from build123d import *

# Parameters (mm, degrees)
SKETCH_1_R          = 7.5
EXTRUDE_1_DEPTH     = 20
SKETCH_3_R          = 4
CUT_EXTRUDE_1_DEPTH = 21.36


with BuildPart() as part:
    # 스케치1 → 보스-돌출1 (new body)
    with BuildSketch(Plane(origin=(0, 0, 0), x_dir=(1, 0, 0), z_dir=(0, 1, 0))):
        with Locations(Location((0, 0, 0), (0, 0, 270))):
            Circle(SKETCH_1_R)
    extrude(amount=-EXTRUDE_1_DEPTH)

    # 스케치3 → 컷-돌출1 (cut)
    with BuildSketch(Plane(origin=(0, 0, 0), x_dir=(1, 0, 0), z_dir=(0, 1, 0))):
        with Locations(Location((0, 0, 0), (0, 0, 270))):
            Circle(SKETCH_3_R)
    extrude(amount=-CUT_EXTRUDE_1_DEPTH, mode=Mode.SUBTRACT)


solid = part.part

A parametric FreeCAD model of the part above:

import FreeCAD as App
import Part
import Sketcher

doc = App.newDocument("Part")
params = doc.addObject("Spreadsheet::Sheet", "Params")
for row, (alias, value) in enumerate([
    ("sketch1_diameter", "15 mm"),
    ("pad1_length", "20 mm"),
    ("sketch2_diameter", "8 mm"),
    ("pocket1_length", "21.36 mm"),
], start=1):
    params.set(f"A{row}", alias)
    params.set(f"B{row}", "=" + value)
    params.setAlias(f"B{row}", alias)

body = doc.addObject("PartDesign::Body", "Body")

sketch1 = body.newObject("Sketcher::SketchObject", "Sketch")
sketch1.AttachmentSupport = (doc.getObject("XZ_Plane"), [""])
sketch1.MapMode = "FlatFace"
sketch1.addGeometry(Part.Circle(App.Vector(0, 0, 0), App.Vector(0, 0, 1), 7.5), False)
sketch1.addConstraint([
    Sketcher.Constraint("Coincident", 0, 3, -1, 1),
    Sketcher.Constraint("Diameter", 0, 15.0),
])
sketch1.setExpression("Constraints[1]", "Params.sketch1_diameter")
pad1 = body.newObject("PartDesign::Pad", "Pad")
pad1.Profile = sketch1
pad1.setExpression("Length", "Params.pad1_length")

sketch2 = body.newObject("Sketcher::SketchObject", "Sketch001")
sketch2.AttachmentSupport = (doc.getObject("XZ_Plane"), [""])
sketch2.MapMode = "FlatFace"
sketch2.addGeometry(Part.Circle(App.Vector(0, 0, 0), App.Vector(0, 0, 1), 4), False)
sketch2.addConstraint([
    Sketcher.Constraint("Coincident", 0, 3, -1, 1),
    Sketcher.Constraint("Diameter", 0, 8.0),
])
sketch2.setExpression("Constraints[1]", "Params.sketch2_diameter")
pocket1 = body.newObject("PartDesign::Pocket", "Pocket")
pocket1.Profile = sketch2
pocket1.setExpression("Length", "Params.pocket1_length")
pocket1.Reversed = True

doc.recompute()
